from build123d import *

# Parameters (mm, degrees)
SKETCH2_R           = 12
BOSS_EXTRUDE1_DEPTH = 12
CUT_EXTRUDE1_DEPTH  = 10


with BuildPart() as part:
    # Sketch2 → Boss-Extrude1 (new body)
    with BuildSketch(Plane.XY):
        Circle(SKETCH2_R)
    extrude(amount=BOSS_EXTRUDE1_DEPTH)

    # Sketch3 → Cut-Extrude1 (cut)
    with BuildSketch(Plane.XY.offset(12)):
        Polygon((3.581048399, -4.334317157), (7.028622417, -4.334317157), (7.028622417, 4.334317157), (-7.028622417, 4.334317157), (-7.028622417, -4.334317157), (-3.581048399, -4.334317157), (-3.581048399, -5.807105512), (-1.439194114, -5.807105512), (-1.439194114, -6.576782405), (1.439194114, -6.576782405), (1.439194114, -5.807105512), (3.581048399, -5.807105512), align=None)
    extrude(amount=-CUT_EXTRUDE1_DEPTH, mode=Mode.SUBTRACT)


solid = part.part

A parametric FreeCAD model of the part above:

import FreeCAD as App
import Part
import Sketcher
from FreeCAD import Vector
Q = App.Units.Quantity

doc = App.newDocument("Part")
body = doc.addObject("PartDesign::Body", "Body")

# Sketch on XY plane
sketch1 = doc.addObject("Sketcher::SketchObject", "Sketch")
body.addObject(sketch1)
sketch1.AttachmentSupport = (doc.XY_Plane, [""])
sketch1.MapMode = "FlatFace"
sketch1.addGeometry(Part.Circle(Vector(0, 0, 0), Vector(0, 0, 1), 12), False)
sketch1.addConstraint([
    Sketcher.Constraint("Coincident", 0, 3, -1, 1),
    Sketcher.Constraint("Diameter", 0, Q("24 mm")),
])
pad1 = doc.addObject("PartDesign::Pad", "Pad")
body.addObject(pad1)
pad1.Profile = sketch1
pad1.Length = 12

# Sketch on XY plane
sketch2 = doc.addObject("Sketcher::SketchObject", "Sketch001")
body.addObject(sketch2)
sketch2.AttachmentSupport = (doc.XY_Plane, [""])
sketch2.MapMode = "FlatFace"
sketch2.AttachmentOffset = App.Placement(Vector(0, 0, 12), App.Rotation())
sketch2.addGeometry([
    Part.LineSegment(Vector(3.6, -4.3, 0), Vector(7, -4.3, 0)),  # 0
    Part.LineSegment(Vector(7, -4.3, 0), Vector(7, 4.3, 0)),  # 1
    Part.LineSegment(Vector(7, 4.3, 0), Vector(-7, 4.3, 0)),  # 2
    Part.LineSegment(Vector(-7, 4.3, 0), Vector(-7, -4.3, 0)),  # 3
    Part.LineSegment(Vector(-7, -4.3, 0), Vector(-3.6, -4.3, 0)),  # 4
    Part.LineSegment(Vector(-3.6, -4.3, 0), Vector(-3.6, -5.8, 0)),  # 5
    Part.LineSegment(Vector(-3.6, -5.8, 0), Vector(-1.4, -5.8, 0)),  # 6
    Part.LineSegment(Vector(-1.4, -5.8, 0), Vector(-1.4, -6.6, 0)),  # 7
    Part.LineSegment(Vector(-1.4, -6.6, 0), Vector(1.4, -6.6, 0)),  # 8
    Part.LineSegment(Vector(1.4, -6.6, 0), Vector(1.4, -5.8, 0)),  # 9
    Part.LineSegment(Vector(1.4, -5.8, 0), Vector(3.6, -5.8, 0)),  # 10
    Part.LineSegment(Vector(3.6, -5.8, 0), Vector(3.6, -4.3, 0)),  # 11
], False)
sketch2.addConstraint([
    Sketcher.Constraint("Coincident", 0, 2, 1, 1),
    Sketcher.Constraint("Coincident", 1, 2, 2, 1),
    Sketcher.Constraint("Coincident", 2, 2, 3, 1),
    Sketcher.Constraint("Coincident", 3, 2, 4, 1),
    Sketcher.Constraint("Coincident", 4, 2, 5, 1),
    Sketcher.Constraint("Coincident", 5, 2, 6, 1),
    Sketcher.Constraint("Coincident", 6, 2, 7, 1),
    Sketcher.Constraint("Coincident", 7, 2, 8, 1),
    Sketcher.Constraint("Coincident", 8, 2, 9, 1),
    Sketcher.Constraint("Coincident", 9, 2, 10, 1),
    Sketcher.Constraint("Coincident", 10, 2, 11, 1),
    Sketcher.Constraint("Coincident", 11, 2, 0, 1),
    Sketcher.Constraint("Horizontal", 0),
    Sketcher.Constraint("Vertical", 1),
    Sketcher.Constraint("Horizontal", 2),
    Sketcher.Constraint("Vertical", 3),
    Sketcher.Constraint("Horizontal", 4),
    Sketcher.Constraint("Vertical", 5),
    Sketcher.Constraint("Horizontal", 6),
    Sketcher.Constraint("Vertical", 7),
    Sketcher.Constraint("Horizontal", 8),
    Sketcher.Constraint("Vertical", 9),
    Sketcher.Constraint("Horizontal", 10),
    Sketcher.Constraint("Vertical", 11),
    Sketcher.Constraint("Symmetric", 0, 2, 2, 2, -1, 1),
    Sketcher.Constraint("Symmetric", 6, 2, 9, 2, -2),
    Sketcher.Constraint("Symmetric", 4, 2, 11, 2, -2),
    Sketcher.Constraint("DistanceX", 8, 1, 8, 2, Q("2.878388 mm")),
    Sketcher.Constraint("DistanceY", 5, 2, 5, 1, Q("1.472788 mm")),
    Sketcher.Constraint("DistanceX", 0, 1, 0, 2, Q("3.447574 mm")),
    Sketcher.Constraint("DistanceX", 2, 2, 2, 1, Q("14.057245 mm")),
    Sketcher.Constraint("DistanceY", 1, 1, 1, 2, Q("8.668634 mm")),
    Sketcher.Constraint("DistanceY", 7, 2, 7, 1, Q("0.769677 mm")),
])
pocket1 = doc.addObject("PartDesign::Pocket", "Pocket")
body.addObject(pocket1)
pocket1.Profile = sketch2
pocket1.Length = 10

doc.recompute()
